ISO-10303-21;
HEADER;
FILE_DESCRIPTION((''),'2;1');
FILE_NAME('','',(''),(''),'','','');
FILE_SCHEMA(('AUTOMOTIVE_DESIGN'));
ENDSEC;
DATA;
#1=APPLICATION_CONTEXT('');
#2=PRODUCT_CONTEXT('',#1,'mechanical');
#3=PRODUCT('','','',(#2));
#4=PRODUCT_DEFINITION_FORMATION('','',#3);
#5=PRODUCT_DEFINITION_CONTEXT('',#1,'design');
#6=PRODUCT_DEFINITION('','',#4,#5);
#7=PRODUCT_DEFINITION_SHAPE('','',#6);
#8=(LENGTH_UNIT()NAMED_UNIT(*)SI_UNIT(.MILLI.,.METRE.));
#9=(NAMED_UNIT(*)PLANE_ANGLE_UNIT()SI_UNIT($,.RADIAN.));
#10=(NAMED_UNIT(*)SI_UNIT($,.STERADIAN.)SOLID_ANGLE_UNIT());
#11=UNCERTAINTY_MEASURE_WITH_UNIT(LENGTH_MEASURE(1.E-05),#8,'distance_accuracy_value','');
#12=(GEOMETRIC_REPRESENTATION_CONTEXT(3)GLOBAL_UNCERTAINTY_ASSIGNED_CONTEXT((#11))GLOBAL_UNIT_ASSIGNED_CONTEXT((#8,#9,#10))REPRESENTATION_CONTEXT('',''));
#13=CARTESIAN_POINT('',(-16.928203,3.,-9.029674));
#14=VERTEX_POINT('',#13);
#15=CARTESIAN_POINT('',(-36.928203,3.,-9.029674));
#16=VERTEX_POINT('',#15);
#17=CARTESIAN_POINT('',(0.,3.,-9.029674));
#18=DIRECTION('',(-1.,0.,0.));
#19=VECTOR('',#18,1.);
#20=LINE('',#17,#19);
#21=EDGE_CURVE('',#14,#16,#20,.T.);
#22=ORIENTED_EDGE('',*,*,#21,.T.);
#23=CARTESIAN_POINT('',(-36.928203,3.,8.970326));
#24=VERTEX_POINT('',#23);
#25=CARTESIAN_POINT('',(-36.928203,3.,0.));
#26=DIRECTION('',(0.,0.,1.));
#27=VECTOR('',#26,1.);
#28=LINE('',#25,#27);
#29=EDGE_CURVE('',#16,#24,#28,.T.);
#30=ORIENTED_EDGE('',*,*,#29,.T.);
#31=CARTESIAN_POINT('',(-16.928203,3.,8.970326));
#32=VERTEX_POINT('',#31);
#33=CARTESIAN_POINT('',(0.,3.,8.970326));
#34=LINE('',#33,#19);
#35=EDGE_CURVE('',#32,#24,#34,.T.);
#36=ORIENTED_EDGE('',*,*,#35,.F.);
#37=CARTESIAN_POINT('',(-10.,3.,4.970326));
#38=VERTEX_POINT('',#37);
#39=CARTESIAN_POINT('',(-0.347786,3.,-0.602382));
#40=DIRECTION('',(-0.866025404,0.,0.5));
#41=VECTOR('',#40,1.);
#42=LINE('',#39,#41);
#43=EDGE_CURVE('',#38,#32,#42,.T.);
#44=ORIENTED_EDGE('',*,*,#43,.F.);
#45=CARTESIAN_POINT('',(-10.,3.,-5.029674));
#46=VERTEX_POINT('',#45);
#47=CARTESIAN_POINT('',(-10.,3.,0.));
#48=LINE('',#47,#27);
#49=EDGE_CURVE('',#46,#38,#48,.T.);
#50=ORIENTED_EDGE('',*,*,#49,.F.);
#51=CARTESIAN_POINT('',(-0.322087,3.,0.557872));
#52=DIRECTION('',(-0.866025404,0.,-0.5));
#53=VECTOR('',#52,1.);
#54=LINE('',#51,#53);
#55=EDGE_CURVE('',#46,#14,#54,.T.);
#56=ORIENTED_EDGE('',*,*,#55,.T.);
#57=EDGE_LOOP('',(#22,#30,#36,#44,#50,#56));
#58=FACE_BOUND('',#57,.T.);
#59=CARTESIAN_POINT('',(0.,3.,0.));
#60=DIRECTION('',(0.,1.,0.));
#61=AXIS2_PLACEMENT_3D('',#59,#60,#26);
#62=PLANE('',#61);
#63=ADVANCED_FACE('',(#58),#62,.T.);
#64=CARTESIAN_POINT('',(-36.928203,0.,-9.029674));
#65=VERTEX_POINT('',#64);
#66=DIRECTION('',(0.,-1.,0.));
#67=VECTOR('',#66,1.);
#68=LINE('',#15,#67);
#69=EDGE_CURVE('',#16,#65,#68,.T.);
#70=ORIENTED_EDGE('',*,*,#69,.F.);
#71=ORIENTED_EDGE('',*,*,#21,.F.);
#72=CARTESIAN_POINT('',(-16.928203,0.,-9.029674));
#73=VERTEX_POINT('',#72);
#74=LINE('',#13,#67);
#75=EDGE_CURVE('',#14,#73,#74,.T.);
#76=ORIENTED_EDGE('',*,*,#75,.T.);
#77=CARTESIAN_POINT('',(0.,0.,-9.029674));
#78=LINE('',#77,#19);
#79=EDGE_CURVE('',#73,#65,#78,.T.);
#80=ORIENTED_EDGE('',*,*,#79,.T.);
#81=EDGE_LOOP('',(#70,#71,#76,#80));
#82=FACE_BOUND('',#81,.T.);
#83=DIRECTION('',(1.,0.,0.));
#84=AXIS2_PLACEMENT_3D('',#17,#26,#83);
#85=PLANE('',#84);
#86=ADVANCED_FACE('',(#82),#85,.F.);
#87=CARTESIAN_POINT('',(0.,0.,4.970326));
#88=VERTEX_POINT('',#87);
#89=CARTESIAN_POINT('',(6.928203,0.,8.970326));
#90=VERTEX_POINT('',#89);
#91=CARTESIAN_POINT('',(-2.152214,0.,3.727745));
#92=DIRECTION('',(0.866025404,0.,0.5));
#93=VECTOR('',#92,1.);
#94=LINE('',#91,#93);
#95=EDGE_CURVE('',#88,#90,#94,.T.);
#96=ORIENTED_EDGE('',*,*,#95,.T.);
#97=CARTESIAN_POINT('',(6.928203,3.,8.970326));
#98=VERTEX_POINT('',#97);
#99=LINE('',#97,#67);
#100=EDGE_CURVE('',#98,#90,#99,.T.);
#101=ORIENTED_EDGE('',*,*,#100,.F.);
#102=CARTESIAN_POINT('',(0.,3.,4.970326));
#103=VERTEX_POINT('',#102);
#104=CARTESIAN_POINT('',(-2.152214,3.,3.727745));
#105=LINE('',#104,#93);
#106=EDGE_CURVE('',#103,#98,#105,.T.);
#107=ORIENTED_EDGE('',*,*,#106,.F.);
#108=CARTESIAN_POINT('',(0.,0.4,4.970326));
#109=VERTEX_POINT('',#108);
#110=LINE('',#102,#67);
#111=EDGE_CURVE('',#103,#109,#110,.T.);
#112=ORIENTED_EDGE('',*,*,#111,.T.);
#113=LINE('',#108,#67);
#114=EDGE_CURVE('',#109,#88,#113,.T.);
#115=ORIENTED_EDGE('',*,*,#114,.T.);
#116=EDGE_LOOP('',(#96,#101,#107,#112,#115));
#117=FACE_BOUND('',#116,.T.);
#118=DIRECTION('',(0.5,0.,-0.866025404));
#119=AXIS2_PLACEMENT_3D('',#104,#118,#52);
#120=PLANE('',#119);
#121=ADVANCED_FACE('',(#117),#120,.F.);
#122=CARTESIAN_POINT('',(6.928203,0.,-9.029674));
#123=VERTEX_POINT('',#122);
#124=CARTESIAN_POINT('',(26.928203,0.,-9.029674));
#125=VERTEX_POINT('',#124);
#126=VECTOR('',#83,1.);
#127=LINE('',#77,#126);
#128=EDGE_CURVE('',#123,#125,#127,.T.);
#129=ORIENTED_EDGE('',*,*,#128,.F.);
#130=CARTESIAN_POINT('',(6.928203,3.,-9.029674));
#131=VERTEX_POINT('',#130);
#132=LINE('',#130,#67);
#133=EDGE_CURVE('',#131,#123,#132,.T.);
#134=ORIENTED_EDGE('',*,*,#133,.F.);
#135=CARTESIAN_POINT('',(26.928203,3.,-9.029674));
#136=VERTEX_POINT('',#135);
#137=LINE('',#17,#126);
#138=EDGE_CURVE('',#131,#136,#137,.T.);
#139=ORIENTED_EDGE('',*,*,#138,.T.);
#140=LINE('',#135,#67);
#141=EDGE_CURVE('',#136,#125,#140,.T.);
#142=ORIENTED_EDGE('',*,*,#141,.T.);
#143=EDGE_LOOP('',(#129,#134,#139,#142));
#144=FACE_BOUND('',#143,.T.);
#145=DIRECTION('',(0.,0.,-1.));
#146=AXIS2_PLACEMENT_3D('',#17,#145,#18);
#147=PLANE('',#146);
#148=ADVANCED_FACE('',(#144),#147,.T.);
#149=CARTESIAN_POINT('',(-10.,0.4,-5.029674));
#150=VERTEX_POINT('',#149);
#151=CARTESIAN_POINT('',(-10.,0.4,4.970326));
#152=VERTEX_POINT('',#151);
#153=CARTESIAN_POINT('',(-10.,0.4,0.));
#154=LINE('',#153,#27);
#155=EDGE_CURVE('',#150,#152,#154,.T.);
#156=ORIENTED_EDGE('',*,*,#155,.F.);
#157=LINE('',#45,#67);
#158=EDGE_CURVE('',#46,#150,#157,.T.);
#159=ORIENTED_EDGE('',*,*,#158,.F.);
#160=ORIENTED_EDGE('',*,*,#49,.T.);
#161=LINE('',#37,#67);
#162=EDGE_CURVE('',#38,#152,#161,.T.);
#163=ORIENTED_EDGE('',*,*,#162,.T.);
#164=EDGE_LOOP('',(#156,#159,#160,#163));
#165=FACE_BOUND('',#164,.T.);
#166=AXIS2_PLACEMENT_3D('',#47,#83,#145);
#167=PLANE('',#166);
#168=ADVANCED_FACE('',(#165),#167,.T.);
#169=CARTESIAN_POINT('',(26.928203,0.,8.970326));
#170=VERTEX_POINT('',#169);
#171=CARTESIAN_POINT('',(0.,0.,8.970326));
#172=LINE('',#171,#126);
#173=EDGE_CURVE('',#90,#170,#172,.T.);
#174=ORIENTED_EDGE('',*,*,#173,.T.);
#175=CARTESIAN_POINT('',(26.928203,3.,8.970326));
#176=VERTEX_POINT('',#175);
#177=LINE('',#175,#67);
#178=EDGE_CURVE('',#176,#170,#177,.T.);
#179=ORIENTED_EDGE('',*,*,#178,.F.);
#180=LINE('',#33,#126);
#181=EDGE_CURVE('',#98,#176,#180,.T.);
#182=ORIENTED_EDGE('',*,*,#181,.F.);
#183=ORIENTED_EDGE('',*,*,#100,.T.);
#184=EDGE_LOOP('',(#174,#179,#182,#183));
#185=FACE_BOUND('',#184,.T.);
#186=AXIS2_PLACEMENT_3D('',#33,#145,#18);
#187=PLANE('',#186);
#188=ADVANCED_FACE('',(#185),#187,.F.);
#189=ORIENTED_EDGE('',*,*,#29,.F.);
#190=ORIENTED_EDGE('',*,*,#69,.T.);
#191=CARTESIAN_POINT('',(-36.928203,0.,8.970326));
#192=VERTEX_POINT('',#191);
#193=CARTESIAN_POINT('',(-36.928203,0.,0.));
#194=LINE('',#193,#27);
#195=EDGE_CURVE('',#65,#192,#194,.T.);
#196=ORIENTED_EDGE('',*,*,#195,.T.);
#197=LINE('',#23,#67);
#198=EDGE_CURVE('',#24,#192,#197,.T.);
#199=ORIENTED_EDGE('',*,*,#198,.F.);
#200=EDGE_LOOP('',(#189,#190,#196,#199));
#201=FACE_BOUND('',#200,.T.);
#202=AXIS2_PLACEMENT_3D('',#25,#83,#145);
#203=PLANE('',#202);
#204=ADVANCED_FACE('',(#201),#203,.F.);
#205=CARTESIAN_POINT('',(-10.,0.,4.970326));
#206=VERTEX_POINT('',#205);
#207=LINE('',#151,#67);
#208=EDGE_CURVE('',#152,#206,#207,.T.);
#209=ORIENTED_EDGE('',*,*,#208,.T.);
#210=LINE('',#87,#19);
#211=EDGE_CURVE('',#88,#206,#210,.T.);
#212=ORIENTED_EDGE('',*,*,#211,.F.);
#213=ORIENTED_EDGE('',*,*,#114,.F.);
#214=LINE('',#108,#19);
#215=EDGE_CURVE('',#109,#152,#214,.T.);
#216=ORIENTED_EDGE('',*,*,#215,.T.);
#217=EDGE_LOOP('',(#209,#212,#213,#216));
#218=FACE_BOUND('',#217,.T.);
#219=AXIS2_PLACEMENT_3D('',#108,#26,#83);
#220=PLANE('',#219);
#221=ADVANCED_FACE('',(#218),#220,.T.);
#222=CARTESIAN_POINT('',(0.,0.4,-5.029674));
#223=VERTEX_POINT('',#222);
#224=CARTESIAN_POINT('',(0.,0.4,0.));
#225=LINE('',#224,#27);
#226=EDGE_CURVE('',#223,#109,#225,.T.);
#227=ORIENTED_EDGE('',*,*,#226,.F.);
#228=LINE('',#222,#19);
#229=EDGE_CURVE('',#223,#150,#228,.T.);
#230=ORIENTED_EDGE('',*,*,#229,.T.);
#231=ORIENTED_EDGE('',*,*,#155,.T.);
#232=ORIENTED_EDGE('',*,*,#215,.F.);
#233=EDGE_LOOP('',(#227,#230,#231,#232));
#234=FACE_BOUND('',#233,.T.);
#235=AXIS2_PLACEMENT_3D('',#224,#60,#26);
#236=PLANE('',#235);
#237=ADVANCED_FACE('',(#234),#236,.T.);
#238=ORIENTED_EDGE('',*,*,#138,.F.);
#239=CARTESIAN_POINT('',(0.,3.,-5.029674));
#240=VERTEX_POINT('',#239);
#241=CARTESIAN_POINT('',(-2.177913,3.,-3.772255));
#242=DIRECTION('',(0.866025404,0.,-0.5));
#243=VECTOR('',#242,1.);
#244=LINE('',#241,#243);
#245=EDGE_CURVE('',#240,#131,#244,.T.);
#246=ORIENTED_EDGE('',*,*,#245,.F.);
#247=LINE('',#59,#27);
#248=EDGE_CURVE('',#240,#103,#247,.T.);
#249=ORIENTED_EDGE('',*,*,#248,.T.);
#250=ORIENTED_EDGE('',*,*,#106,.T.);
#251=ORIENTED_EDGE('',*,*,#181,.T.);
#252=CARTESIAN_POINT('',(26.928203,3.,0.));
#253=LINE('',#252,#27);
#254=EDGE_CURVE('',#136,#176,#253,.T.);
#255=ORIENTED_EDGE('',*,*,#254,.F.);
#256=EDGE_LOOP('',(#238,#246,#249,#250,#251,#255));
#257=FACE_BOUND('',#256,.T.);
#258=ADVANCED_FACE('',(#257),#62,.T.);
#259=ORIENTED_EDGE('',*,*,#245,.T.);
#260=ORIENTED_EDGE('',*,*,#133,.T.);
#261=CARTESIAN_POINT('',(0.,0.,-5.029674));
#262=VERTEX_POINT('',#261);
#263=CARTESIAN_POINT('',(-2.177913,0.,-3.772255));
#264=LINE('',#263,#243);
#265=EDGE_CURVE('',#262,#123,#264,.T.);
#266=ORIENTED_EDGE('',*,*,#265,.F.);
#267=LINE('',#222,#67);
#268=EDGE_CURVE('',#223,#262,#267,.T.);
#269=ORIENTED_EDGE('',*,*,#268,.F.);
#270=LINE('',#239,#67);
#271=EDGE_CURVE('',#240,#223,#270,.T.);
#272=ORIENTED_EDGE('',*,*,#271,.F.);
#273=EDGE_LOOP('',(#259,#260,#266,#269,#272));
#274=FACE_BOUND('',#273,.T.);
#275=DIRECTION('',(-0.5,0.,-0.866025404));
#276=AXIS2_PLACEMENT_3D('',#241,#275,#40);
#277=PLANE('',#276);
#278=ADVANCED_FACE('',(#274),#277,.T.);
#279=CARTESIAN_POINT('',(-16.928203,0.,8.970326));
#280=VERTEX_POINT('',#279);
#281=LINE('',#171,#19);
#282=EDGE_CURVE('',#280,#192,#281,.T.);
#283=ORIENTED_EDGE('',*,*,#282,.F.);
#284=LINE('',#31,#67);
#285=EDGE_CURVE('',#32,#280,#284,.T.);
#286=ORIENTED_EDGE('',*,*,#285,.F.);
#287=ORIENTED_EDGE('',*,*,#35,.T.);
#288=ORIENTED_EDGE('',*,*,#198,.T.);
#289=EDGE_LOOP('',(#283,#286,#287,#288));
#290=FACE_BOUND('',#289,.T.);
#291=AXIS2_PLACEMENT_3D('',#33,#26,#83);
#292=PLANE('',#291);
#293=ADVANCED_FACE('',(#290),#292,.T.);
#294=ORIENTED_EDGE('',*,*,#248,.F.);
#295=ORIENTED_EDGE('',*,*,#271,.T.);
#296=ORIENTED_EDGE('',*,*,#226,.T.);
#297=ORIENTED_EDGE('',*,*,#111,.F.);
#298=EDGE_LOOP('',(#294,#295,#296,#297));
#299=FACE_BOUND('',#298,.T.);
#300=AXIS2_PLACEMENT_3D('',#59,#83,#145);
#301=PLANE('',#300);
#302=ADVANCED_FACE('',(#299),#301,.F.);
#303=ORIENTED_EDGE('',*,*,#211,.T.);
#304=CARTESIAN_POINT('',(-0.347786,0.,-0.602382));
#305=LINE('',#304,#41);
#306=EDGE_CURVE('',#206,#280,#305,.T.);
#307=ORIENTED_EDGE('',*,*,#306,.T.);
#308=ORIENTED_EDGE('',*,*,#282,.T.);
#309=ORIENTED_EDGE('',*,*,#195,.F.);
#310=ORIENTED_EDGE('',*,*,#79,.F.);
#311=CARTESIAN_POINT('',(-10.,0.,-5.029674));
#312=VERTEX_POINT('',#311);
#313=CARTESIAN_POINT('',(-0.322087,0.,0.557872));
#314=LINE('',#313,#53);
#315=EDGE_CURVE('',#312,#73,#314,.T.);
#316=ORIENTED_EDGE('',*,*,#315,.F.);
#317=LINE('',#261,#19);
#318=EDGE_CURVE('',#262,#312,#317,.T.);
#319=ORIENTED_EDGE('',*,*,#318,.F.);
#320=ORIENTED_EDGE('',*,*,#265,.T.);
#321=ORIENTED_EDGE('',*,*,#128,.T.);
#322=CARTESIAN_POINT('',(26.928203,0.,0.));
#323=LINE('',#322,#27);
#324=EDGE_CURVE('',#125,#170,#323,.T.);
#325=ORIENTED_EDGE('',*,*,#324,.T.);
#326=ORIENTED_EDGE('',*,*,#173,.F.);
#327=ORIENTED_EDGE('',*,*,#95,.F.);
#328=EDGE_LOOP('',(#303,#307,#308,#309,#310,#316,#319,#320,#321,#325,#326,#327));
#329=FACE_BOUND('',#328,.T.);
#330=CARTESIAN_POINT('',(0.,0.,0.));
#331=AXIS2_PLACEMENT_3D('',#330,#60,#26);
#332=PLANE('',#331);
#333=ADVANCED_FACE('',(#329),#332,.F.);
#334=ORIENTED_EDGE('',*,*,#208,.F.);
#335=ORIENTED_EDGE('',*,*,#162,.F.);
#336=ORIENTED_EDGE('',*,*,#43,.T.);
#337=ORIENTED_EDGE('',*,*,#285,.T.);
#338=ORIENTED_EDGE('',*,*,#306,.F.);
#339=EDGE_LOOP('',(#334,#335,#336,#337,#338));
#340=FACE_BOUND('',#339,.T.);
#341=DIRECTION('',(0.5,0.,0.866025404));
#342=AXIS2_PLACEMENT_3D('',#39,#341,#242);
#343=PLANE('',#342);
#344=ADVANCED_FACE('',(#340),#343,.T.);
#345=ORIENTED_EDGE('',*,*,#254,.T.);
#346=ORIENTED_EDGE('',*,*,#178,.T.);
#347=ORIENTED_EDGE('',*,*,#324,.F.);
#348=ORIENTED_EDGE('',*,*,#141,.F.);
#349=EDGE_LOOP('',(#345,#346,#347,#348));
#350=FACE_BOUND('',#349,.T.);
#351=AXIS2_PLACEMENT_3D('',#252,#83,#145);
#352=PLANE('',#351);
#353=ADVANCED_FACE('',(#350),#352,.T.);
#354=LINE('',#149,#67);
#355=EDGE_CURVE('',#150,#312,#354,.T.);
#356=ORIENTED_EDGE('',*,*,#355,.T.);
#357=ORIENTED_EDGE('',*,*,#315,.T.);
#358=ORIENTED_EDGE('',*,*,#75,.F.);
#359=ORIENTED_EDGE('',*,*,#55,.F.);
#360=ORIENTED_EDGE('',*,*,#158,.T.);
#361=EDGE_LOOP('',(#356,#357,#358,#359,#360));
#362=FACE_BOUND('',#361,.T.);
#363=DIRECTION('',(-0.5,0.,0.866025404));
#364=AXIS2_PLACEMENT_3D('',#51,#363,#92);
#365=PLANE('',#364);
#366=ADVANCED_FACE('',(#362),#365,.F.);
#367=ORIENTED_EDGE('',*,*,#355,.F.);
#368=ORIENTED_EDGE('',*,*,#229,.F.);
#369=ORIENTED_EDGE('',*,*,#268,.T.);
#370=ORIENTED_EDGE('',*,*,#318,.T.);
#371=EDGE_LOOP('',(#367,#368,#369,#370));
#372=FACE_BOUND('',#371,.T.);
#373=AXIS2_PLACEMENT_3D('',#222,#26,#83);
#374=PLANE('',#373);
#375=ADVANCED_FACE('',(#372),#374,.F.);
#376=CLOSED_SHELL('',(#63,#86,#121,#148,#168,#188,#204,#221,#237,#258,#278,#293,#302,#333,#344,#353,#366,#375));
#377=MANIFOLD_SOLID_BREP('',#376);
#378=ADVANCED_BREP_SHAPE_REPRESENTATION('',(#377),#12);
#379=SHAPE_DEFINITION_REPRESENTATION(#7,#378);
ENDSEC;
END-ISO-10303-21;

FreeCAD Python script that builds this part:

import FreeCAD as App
import Part
import Sketcher
Q = App.Units.Quantity

doc = App.newDocument("Part")
body = doc.addObject("PartDesign::Body", "Body")

# Sketch on XZ plane
sketch1 = doc.addObject("Sketcher::SketchObject", "Sketch")
body.addObject(sketch1)
sketch1.AttachmentSupport = (doc.XZ_Plane, [""])
sketch1.MapMode = "FlatFace"
sketch1.addGeometry([
    Part.LineSegment(App.Vector(-10, 5, 0), App.Vector(-10, -5, 0)),  # 0
    Part.LineSegment(App.Vector(-10, -5, 0), App.Vector(-17, -9, 0)),  # 1
    Part.LineSegment(App.Vector(-17, -9, 0), App.Vector(-37, -9, 0)),  # 2
    Part.LineSegment(App.Vector(-37, -9, 0), App.Vector(-37, 9, 0)),  # 3
    Part.LineSegment(App.Vector(-37, 9, 0), App.Vector(-17, 9, 0)),  # 4
    Part.LineSegment(App.Vector(-17, 9, 0), App.Vector(-10, 5, 0)),  # 5
], False)
sketch1.addConstraint([
    Sketcher.Constraint("Coincident", 0, 2, 1, 1),
    Sketcher.Constraint("Coincident", 1, 2, 2, 1),
    Sketcher.Constraint("Coincident", 2, 2, 3, 1),
    Sketcher.Constraint("Coincident", 3, 2, 4, 1),
    Sketcher.Constraint("Coincident", 4, 2, 5, 1),
    Sketcher.Constraint("Coincident", 5, 2, 0, 1),
    Sketcher.Constraint("Vertical", 0),
    Sketcher.Constraint("Horizontal", 2),
    Sketcher.Constraint("Vertical", 3),
    Sketcher.Constraint("Horizontal", 4),
    Sketcher.Constraint("Vertical", 1, 2, 4, 2),
    Sketcher.Constraint("Equal", 1, 5),
    Sketcher.Constraint("DistanceX", 2, 2, 2, 1, 20.0),
    Sketcher.Constraint("DistanceY", 0, 2, 0, 1, 10.0),
    Sketcher.Constraint("DistanceY", 3, 1, 3, 2, 18.0),
    Sketcher.Constraint("Angle", 1, Q("-150 deg")),
    Sketcher.Constraint("DistanceX", 0, 2, -1, 1, 10.0),
    Sketcher.Constraint("DistanceY", 0, 2, -1, 1, 5.029674),
])
pad1 = doc.addObject("PartDesign::Pad", "Pad")
body.addObject(pad1)
pad1.Profile = sketch1
pad1.Length = 3
pad1.Reversed = True
body2 = doc.addObject("PartDesign::Body", "Body001")

# Sketch on XZ plane
sketch2 = doc.addObject("Sketcher::SketchObject", "Sketch001")
body2.addObject(sketch2)
sketch2.AttachmentSupport = (doc.getObject("XZ_Plane001"), [""])
sketch2.MapMode = "FlatFace"
sketch2.addGeometry([
    Part.LineSegment(App.Vector(7, -9, 0), App.Vector(0, -5, 0)),  # 0
    Part.LineSegment(App.Vector(0, -5, 0), App.Vector(0, 5, 0)),  # 1
    Part.LineSegment(App.Vector(0, 5, 0), App.Vector(7, 9, 0)),  # 2
    Part.LineSegment(App.Vector(7, 9, 0), App.Vector(27, 9, 0)),  # 3
    Part.LineSegment(App.Vector(27, 9, 0), App.Vector(27, -9, 0)),  # 4
    Part.LineSegment(App.Vector(27, -9, 0), App.Vector(7, -9, 0)),  # 5
], False)
sketch2.addConstraint([
    Sketcher.Constraint("Coincident", 0, 2, 1, 1),
    Sketcher.Constraint("Coincident", 1, 2, 2, 1),
    Sketcher.Constraint("Coincident", 2, 2, 3, 1),
    Sketcher.Constraint("Coincident", 3, 2, 4, 1),
    Sketcher.Constraint("Coincident", 4, 2, 5, 1),
    Sketcher.Constraint("Coincident", 5, 2, 0, 1),
    Sketcher.Constraint("Vertical", 1),
    Sketcher.Constraint("Horizontal", 3),
    Sketcher.Constraint("Vertical", 4),
    Sketcher.Constraint("Horizontal", 5),
    Sketcher.Constraint("PointOnObject", 0, 2, -2),
    Sketcher.Constraint("Vertical", 2, 2, 5, 2),
    Sketcher.Constraint("Equal", 0, 2),
    Sketcher.Constraint("DistanceX", 3, 1, 3, 2, 20.0),
    Sketcher.Constraint("DistanceY", 1, 1, 1, 2, 10.0),
    Sketcher.Constraint("DistanceY", 4, 2, 4, 1, 18.0),
    Sketcher.Constraint("Angle", 0, Q("150 deg")),
    Sketcher.Constraint("DistanceY", 0, 2, -1, 1, 5.029674),
])
pad2 = doc.addObject("PartDesign::Pad", "Pad001")
body2.addObject(pad2)
pad2.Profile = sketch2
pad2.Length = 3
pad2.Reversed = True
body.AllowCompound = True
doc.recompute()

boolean = doc.addObject("PartDesign::Boolean", "Boolean")
body.addObject(boolean)
boolean.Type = "Fuse"
boolean.addObjects([body2])

# Sketch on XZ plane
sketch3 = doc.addObject("Sketcher::SketchObject", "Sketch002")
body.addObject(sketch3)
sketch3.AttachmentSupport = (doc.XZ_Plane, [""])
sketch3.MapMode = "FlatFace"
sketch3.addGeometry([
    Part.LineSegment(App.Vector(-10, -5, 0), App.Vector(-10, 5, 0)),
    Part.LineSegment(App.Vector(-10, 5, 0), App.Vector(0, 5, 0)),
    Part.LineSegment(App.Vector(0, 5, 0), App.Vector(0, -5, 0)),
    Part.LineSegment(App.Vector(0, -5, 0), App.Vector(-10, -5, 0)),
], False)
sketch3.addConstraint([
    Sketcher.Constraint("Coincident", 0, 2, 1, 1),
    Sketcher.Constraint("Coincident", 1, 2, 2, 1),
    Sketcher.Constraint("Coincident", 2, 2, 3, 1),
    Sketcher.Constraint("Coincident", 3, 2, 0, 1),
    Sketcher.Constraint("Vertical", 0),
    Sketcher.Constraint("Horizontal", 1),
    Sketcher.Constraint("Vertical", 2),
    Sketcher.Constraint("Horizontal", 3),
    Sketcher.Constraint("PointOnObject", 1, 2, -2),
    Sketcher.Constraint("Equal", 3, 0),
    Sketcher.Constraint("DistanceX", 1, 1, 1, 2, 10.0),
    Sketcher.Constraint("DistanceY", -1, 1, 0, 2, 4.970326),
])
pad3 = doc.addObject("PartDesign::Pad", "Pad002")
body.addObject(pad3)
pad3.Profile = sketch3
pad3.Length = 0.4
pad3.Reversed = True

doc.recompute()
